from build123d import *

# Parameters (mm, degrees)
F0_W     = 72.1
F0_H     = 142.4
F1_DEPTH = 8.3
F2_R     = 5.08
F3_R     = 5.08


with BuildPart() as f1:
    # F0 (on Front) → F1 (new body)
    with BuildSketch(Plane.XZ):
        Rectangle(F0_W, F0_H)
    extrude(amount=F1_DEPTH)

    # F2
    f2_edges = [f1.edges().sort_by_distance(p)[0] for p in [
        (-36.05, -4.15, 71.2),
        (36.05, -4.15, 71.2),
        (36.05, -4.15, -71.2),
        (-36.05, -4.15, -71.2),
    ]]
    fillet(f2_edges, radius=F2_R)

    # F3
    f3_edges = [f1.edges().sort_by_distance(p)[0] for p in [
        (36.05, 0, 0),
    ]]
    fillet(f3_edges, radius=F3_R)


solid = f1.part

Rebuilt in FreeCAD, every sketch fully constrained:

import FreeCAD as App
import Part
import Sketcher

V = App.Vector
Q = App.Units.Quantity


def edges_at(feature, points):
    """Names of the edges that pass closest to the given points."""
    edges = feature.Shape.Edges
    near = lambda p: min(range(len(edges)), key=lambda i: edges[i].distToShape(Part.Vertex(*p))[0])
    return sorted({f"Edge{near(p) + 1}" for p in points})


def add_polygon(sketch, points):
    """Adds a closed chain of lines whose ends are joined by coincident constraints."""
    first, n = sketch.GeometryCount, len(points)
    for a, b in zip(points, points[1:] + points[:1]):
        sketch.addGeometry(Part.LineSegment(App.Vector(*a, 0), App.Vector(*b, 0)), False)
    for i in range(n):
        sketch.addConstraint(Sketcher.Constraint("Coincident", first + i, 2, first + (i + 1) % n, 1))

doc = App.newDocument("Part")
body = doc.addObject("PartDesign::Body", "Body")

# Sketch on XZ plane
sketch1 = body.newObject("Sketcher::SketchObject", "Sketch")
sketch1.AttachmentSupport = (doc.getObject("XZ_Plane"), [""])
sketch1.MapMode = "FlatFace"
add_polygon(sketch1, [(-36.05, 71.2), (-36.05, -71.2), (36.05, -71.2), (36.05, 71.2)])  # lines 0-3
sketch1.addConstraint(Sketcher.Constraint("Vertical", 0))
sketch1.addConstraint(Sketcher.Constraint("Horizontal", 1))
sketch1.addConstraint(Sketcher.Constraint("Vertical", 2))
sketch1.addConstraint(Sketcher.Constraint("Horizontal", 3))
sketch1.addConstraint(Sketcher.Constraint("Symmetric", 0, 2, 2, 2, -1, 1))
sketch1.addConstraint(Sketcher.Constraint("DistanceX", 1, 1, 1, 2, Q("72.1 mm")))
sketch1.addConstraint(Sketcher.Constraint("DistanceY", 0, 2, 0, 1, Q("142.4 mm")))
pad1 = body.newObject("PartDesign::Pad", "Pad")
pad1.Profile = sketch1
pad1.Length = 8.3
doc.recompute()

fillet = body.newObject("PartDesign::Fillet", "Fillet")
fillet.Base = (pad1, edges_at(pad1, [
    (-36.05, -4.15, 71.2),
    (36.05, -4.15, 71.2),
    (36.05, -4.15, -71.2),
    (-36.05, -4.15, -71.2),
]))
fillet.Radius = 5.08
doc.recompute()

fillet2 = body.newObject("PartDesign::Fillet", "Fillet001")
fillet2.Base = (fillet, edges_at(fillet, [(36.05, 0, 0)]))
fillet2.Radius = 5.08

doc.recompute()
